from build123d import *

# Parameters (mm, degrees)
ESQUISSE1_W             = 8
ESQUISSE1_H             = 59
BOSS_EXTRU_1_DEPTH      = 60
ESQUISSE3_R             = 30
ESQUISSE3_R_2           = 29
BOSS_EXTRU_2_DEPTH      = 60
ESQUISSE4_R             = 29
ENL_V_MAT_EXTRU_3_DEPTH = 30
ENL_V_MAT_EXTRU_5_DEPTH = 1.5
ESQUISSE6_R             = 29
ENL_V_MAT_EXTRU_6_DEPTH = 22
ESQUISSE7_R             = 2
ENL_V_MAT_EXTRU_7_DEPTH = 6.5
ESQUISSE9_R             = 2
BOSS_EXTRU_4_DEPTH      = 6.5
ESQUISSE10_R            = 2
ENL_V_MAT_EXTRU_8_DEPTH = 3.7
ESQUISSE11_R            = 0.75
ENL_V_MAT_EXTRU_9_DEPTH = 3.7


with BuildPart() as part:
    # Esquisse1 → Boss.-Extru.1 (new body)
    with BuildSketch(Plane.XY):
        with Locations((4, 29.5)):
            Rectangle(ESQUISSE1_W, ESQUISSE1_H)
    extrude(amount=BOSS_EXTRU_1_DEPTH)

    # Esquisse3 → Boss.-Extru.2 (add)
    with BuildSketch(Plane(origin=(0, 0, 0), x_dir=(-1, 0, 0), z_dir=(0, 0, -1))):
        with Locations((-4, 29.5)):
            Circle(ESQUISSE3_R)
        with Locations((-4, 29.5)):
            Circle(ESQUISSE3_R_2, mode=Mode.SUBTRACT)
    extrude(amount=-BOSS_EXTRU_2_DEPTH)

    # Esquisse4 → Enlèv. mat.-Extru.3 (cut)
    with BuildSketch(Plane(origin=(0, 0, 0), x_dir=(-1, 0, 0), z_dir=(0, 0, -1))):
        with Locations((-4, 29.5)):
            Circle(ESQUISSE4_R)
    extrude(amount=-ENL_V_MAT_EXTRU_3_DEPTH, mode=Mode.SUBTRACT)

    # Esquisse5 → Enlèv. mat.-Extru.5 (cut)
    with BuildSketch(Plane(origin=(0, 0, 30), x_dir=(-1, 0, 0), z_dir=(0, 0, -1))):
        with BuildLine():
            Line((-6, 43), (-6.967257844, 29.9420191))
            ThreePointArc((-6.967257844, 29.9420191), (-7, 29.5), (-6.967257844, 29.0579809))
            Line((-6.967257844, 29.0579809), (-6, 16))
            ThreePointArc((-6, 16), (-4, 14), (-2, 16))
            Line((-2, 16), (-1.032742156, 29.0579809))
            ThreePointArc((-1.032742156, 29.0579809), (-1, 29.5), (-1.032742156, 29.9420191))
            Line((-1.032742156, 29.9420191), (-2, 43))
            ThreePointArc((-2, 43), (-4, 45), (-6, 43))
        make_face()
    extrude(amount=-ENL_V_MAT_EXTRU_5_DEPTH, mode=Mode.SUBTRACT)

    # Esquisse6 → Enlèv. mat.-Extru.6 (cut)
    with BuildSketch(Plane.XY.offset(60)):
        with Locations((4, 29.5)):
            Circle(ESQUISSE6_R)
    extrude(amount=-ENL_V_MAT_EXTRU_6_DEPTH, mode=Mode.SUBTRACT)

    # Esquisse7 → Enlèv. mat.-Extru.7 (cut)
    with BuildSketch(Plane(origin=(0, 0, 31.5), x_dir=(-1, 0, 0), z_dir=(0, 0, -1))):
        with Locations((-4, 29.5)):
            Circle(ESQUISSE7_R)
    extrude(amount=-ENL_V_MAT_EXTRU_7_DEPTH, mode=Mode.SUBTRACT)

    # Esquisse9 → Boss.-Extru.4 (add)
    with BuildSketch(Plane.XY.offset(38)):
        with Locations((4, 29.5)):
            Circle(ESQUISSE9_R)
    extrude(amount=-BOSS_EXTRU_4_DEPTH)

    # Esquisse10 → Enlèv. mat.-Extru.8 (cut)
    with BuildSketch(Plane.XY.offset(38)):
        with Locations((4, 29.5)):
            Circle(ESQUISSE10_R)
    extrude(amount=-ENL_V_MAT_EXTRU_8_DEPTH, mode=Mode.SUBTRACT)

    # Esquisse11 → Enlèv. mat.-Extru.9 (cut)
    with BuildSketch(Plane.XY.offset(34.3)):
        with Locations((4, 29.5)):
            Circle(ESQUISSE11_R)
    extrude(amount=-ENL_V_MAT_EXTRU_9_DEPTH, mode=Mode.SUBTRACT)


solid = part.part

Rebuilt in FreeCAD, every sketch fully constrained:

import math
import FreeCAD as App
import Part
import Sketcher
from FreeCAD import Vector

doc = App.newDocument("Part")
body = doc.addObject("PartDesign::Body", "Body")

# Sketch on XY plane
sketch1 = body.newObject("Sketcher::SketchObject", "Sketch")
sketch1.AttachmentSupport = (doc.getObject("XY_Plane"), [""])
sketch1.MapMode = "FlatFace"
sketch1.addGeometry([
    Part.LineSegment(Vector(0, 59, 0), Vector(0, 0, 0)),
    Part.LineSegment(Vector(0, 0, 0), Vector(8, 0, 0)),
    Part.LineSegment(Vector(8, 0, 0), Vector(8, 59, 0)),
    Part.LineSegment(Vector(8, 59, 0), Vector(0, 59, 0)),
], False)
sketch1.addConstraint([
    Sketcher.Constraint("Coincident", 0, 2, 1, 1),
    Sketcher.Constraint("Coincident", 1, 2, 2, 1),
    Sketcher.Constraint("Coincident", 2, 2, 3, 1),
    Sketcher.Constraint("Coincident", 3, 2, 0, 1),
    Sketcher.Constraint("Vertical", 0),
    Sketcher.Constraint("Horizontal", 1),
    Sketcher.Constraint("Vertical", 2),
    Sketcher.Constraint("Horizontal", 3),
    Sketcher.Constraint("Coincident", 0, 2, -1, 1),
    Sketcher.Constraint("DistanceX", 1, 1, 1, 2, 8.0),
    Sketcher.Constraint("DistanceY", 0, 2, 0, 1, 59.0),
])
pad1 = body.newObject("PartDesign::Pad", "Pad")
pad1.Profile = sketch1
pad1.Length = 60

# Sketch on XY plane
sketch2 = body.newObject("Sketcher::SketchObject", "Sketch001")
sketch2.AttachmentSupport = (doc.getObject("XY_Plane"), [""])
sketch2.MapMode = "FlatFace"
sketch2.addGeometry([
    Part.Circle(Vector(4, 30, 0), Vector(0, 0, 1), 30),
    Part.Circle(Vector(4, 30, 0), Vector(0, 0, 1), 29),
], False)
sketch2.addConstraint([
    Sketcher.Constraint("Coincident", 1, 3, 0, 3),
    Sketcher.Constraint("Diameter", 0, 60.0),
    Sketcher.Constraint("Diameter", 1, 58.0),
    Sketcher.Constraint("DistanceX", -1, 1, 0, 3, 4.0),
    Sketcher.Constraint("DistanceY", -1, 1, 0, 3, 29.5),
])
pad2 = body.newObject("PartDesign::Pad", "Pad001")
pad2.Profile = sketch2
pad2.Length = 60

# Sketch on XY plane
sketch3 = body.newObject("Sketcher::SketchObject", "Sketch002")
sketch3.AttachmentSupport = (doc.getObject("XY_Plane"), [""])
sketch3.MapMode = "FlatFace"
sketch3.addGeometry(Part.Circle(Vector(4, 30, 0), Vector(0, 0, 1), 29), False)
sketch3.addConstraint([
    Sketcher.Constraint("Diameter", 0, 58.0),
    Sketcher.Constraint("DistanceX", -1, 1, 0, 3, 4.0),
    Sketcher.Constraint("DistanceY", -1, 1, 0, 3, 29.5),
])
pocket1 = body.newObject("PartDesign::Pocket", "Pocket")
pocket1.Profile = sketch3
pocket1.Length = 30
pocket1.Reversed = True

# Sketch on XY plane
sketch4 = body.newObject("Sketcher::SketchObject", "Sketch003")
sketch4.AttachmentSupport = (doc.getObject("XY_Plane"), [""])
sketch4.MapMode = "FlatFace"
sketch4.AttachmentOffset = App.Placement(Vector(0, 0, 30), App.Rotation())
sketch4.addGeometry([
    Part.LineSegment(Vector(6, 43, 0), Vector(7, 29.9, 0)),  # 0
    Part.ArcOfCircle(Part.Circle(Vector(4, 29.5, 0), Vector(0, 0, 1), 3), math.radians(-8.47), math.radians(8.47)),  # 1
    Part.LineSegment(Vector(7, 29.1, 0), Vector(6, 16, 0)),  # 2
    Part.ArcOfCircle(Part.Circle(Vector(4, 16, 0), Vector(0, 0, 1), 2), math.radians(180), math.radians(360)),  # 3
    Part.LineSegment(Vector(2, 16, 0), Vector(1, 29.1, 0)),  # 4
    Part.ArcOfCircle(Part.Circle(Vector(4, 29.5, 0), Vector(0, 0, 1), 3), math.radians(171.53), math.radians(188.47)),  # 5
    Part.LineSegment(Vector(1, 29.9, 0), Vector(2, 43, 0)),  # 6
    Part.ArcOfCircle(Part.Circle(Vector(4, 43, 0), Vector(0, 0, 1), 2), math.radians(0), math.radians(180)),  # 7
], False)
sketch4.addConstraint([
    Sketcher.Constraint("Coincident", 0, 2, 1, 2),
    Sketcher.Constraint("Coincident", 1, 1, 2, 1),
    Sketcher.Constraint("Coincident", 2, 2, 3, 2),
    Sketcher.Constraint("Coincident", 3, 1, 4, 1),
    Sketcher.Constraint("Coincident", 4, 2, 5, 2),
    Sketcher.Constraint("Coincident", 5, 1, 6, 1),
    Sketcher.Constraint("Coincident", 6, 2, 7, 2),
    Sketcher.Constraint("Coincident", 7, 1, 0, 1),
    Sketcher.Constraint("Coincident", 5, 3, 1, 3),
    Sketcher.Constraint("Equal", 1, 5),
    Sketcher.Constraint("Equal", 3, 7),
    Sketcher.Constraint("Parallel", 0, 4),
    Sketcher.Constraint("Parallel", 2, 6),
    Sketcher.Constraint("Horizontal", 3, 3, 2, 2),
    Sketcher.Constraint("Horizontal", 2, 2, 3, 1),
    Sketcher.Constraint("Horizontal", 1, 1, 4, 2),
    Sketcher.Constraint("Horizontal", 0, 2, 5, 1),
    Sketcher.Constraint("Horizontal", 7, 3, 6, 2),
    Sketcher.Constraint("Horizontal", 6, 2, 7, 1),
    Sketcher.Constraint("Vertical", 1, 3, 3, 3),
    Sketcher.Constraint("Vertical", 0, 2, 1, 1),
    Sketcher.Constraint("Radius", 1, 3.0),
    Sketcher.Constraint("Radius", 3, 2.0),
    Sketcher.Constraint("DistanceX", -1, 1, 1, 3, 4.0),
    Sketcher.Constraint("DistanceY", -1, 1, 3, 3, 16.0),
    Sketcher.Constraint("DistanceY", -1, 1, 7, 3, 43.0),
    Sketcher.Constraint("DistanceY", -1, 1, 0, 2, 29.942019),
])
pocket2 = body.newObject("PartDesign::Pocket", "Pocket001")
pocket2.Profile = sketch4
pocket2.Length = 1.5
pocket2.Reversed = True

# Sketch on XY plane
sketch5 = body.newObject("Sketcher::SketchObject", "Sketch004")
sketch5.AttachmentSupport = (doc.getObject("XY_Plane"), [""])
sketch5.MapMode = "FlatFace"
sketch5.AttachmentOffset = App.Placement(Vector(0, 0, 60), App.Rotation())
sketch5.addGeometry(Part.Circle(Vector(4, 30, 0), Vector(0, 0, 1), 29), False)
sketch5.addConstraint([
    Sketcher.Constraint("Diameter", 0, 58.0),
    Sketcher.Constraint("DistanceX", -1, 1, 0, 3, 4.0),
    Sketcher.Constraint("DistanceY", -1, 1, 0, 3, 29.5),
])
pocket3 = body.newObject("PartDesign::Pocket", "Pocket002")
pocket3.Profile = sketch5
pocket3.Length = 22

# Sketch on XY plane
sketch6 = body.newObject("Sketcher::SketchObject", "Sketch005")
sketch6.AttachmentSupport = (doc.getObject("XY_Plane"), [""])
sketch6.MapMode = "FlatFace"
sketch6.AttachmentOffset = App.Placement(Vector(0, 0, 31.5), App.Rotation())
sketch6.addGeometry(Part.Circle(Vector(4, 29.5, 0), Vector(0, 0, 1), 2), False)
sketch6.addConstraint([
    Sketcher.Constraint("Diameter", 0, 4.0),
    Sketcher.Constraint("DistanceX", -1, 1, 0, 3, 4.0),
    Sketcher.Constraint("DistanceY", -1, 1, 0, 3, 29.5),
])
pocket4 = body.newObject("PartDesign::Pocket", "Pocket003")
pocket4.Profile = sketch6
pocket4.Length = 6.5
pocket4.Reversed = True

# Sketch on XY plane
sketch7 = body.newObject("Sketcher::SketchObject", "Sketch006")
sketch7.AttachmentSupport = (doc.getObject("XY_Plane"), [""])
sketch7.MapMode = "FlatFace"
sketch7.AttachmentOffset = App.Placement(Vector(0, 0, 38), App.Rotation())
sketch7.addGeometry(Part.Circle(Vector(4, 29.5, 0), Vector(0, 0, 1), 2), False)
sketch7.addConstraint([
    Sketcher.Constraint("Diameter", 0, 4.0),
    Sketcher.Constraint("DistanceX", -1, 1, 0, 3, 4.0),
    Sketcher.Constraint("DistanceY", -1, 1, 0, 3, 29.5),
])
pad3 = body.newObject("PartDesign::Pad", "Pad002")
pad3.Profile = sketch7
pad3.Length = 6.5
pad3.Reversed = True

# Sketch on XY plane
sketch8 = body.newObject("Sketcher::SketchObject", "Sketch007")
sketch8.AttachmentSupport = (doc.getObject("XY_Plane"), [""])
sketch8.MapMode = "FlatFace"
sketch8.AttachmentOffset = App.Placement(Vector(0, 0, 38), App.Rotation())
sketch8.addGeometry(Part.Circle(Vector(4, 29.5, 0), Vector(0, 0, 1), 2), False)
sketch8.addConstraint([
    Sketcher.Constraint("Diameter", 0, 4.0),
    Sketcher.Constraint("DistanceX", -1, 1, 0, 3, 4.0),
    Sketcher.Constraint("DistanceY", -1, 1, 0, 3, 29.5),
])
pocket5 = body.newObject("PartDesign::Pocket", "Pocket004")
pocket5.Profile = sketch8
pocket5.Length = 3.7

# Sketch on XY plane
sketch9 = body.newObject("Sketcher::SketchObject", "Sketch008")
sketch9.AttachmentSupport = (doc.getObject("XY_Plane"), [""])
sketch9.MapMode = "FlatFace"
sketch9.AttachmentOffset = App.Placement(Vector(0, 0, 34.3), App.Rotation())
sketch9.addGeometry(Part.Circle(Vector(4, 29.5, 0), Vector(0, 0, 1), 0.8), False)
sketch9.addConstraint([
    Sketcher.Constraint("Diameter", 0, 1.5),
    Sketcher.Constraint("DistanceX", -1, 1, 0, 3, 4.0),
    Sketcher.Constraint("DistanceY", -1, 1, 0, 3, 29.5),
])
pocket6 = body.newObject("PartDesign::Pocket", "Pocket005")
pocket6.Profile = sketch9
pocket6.Length = 3.7

doc.recompute()
